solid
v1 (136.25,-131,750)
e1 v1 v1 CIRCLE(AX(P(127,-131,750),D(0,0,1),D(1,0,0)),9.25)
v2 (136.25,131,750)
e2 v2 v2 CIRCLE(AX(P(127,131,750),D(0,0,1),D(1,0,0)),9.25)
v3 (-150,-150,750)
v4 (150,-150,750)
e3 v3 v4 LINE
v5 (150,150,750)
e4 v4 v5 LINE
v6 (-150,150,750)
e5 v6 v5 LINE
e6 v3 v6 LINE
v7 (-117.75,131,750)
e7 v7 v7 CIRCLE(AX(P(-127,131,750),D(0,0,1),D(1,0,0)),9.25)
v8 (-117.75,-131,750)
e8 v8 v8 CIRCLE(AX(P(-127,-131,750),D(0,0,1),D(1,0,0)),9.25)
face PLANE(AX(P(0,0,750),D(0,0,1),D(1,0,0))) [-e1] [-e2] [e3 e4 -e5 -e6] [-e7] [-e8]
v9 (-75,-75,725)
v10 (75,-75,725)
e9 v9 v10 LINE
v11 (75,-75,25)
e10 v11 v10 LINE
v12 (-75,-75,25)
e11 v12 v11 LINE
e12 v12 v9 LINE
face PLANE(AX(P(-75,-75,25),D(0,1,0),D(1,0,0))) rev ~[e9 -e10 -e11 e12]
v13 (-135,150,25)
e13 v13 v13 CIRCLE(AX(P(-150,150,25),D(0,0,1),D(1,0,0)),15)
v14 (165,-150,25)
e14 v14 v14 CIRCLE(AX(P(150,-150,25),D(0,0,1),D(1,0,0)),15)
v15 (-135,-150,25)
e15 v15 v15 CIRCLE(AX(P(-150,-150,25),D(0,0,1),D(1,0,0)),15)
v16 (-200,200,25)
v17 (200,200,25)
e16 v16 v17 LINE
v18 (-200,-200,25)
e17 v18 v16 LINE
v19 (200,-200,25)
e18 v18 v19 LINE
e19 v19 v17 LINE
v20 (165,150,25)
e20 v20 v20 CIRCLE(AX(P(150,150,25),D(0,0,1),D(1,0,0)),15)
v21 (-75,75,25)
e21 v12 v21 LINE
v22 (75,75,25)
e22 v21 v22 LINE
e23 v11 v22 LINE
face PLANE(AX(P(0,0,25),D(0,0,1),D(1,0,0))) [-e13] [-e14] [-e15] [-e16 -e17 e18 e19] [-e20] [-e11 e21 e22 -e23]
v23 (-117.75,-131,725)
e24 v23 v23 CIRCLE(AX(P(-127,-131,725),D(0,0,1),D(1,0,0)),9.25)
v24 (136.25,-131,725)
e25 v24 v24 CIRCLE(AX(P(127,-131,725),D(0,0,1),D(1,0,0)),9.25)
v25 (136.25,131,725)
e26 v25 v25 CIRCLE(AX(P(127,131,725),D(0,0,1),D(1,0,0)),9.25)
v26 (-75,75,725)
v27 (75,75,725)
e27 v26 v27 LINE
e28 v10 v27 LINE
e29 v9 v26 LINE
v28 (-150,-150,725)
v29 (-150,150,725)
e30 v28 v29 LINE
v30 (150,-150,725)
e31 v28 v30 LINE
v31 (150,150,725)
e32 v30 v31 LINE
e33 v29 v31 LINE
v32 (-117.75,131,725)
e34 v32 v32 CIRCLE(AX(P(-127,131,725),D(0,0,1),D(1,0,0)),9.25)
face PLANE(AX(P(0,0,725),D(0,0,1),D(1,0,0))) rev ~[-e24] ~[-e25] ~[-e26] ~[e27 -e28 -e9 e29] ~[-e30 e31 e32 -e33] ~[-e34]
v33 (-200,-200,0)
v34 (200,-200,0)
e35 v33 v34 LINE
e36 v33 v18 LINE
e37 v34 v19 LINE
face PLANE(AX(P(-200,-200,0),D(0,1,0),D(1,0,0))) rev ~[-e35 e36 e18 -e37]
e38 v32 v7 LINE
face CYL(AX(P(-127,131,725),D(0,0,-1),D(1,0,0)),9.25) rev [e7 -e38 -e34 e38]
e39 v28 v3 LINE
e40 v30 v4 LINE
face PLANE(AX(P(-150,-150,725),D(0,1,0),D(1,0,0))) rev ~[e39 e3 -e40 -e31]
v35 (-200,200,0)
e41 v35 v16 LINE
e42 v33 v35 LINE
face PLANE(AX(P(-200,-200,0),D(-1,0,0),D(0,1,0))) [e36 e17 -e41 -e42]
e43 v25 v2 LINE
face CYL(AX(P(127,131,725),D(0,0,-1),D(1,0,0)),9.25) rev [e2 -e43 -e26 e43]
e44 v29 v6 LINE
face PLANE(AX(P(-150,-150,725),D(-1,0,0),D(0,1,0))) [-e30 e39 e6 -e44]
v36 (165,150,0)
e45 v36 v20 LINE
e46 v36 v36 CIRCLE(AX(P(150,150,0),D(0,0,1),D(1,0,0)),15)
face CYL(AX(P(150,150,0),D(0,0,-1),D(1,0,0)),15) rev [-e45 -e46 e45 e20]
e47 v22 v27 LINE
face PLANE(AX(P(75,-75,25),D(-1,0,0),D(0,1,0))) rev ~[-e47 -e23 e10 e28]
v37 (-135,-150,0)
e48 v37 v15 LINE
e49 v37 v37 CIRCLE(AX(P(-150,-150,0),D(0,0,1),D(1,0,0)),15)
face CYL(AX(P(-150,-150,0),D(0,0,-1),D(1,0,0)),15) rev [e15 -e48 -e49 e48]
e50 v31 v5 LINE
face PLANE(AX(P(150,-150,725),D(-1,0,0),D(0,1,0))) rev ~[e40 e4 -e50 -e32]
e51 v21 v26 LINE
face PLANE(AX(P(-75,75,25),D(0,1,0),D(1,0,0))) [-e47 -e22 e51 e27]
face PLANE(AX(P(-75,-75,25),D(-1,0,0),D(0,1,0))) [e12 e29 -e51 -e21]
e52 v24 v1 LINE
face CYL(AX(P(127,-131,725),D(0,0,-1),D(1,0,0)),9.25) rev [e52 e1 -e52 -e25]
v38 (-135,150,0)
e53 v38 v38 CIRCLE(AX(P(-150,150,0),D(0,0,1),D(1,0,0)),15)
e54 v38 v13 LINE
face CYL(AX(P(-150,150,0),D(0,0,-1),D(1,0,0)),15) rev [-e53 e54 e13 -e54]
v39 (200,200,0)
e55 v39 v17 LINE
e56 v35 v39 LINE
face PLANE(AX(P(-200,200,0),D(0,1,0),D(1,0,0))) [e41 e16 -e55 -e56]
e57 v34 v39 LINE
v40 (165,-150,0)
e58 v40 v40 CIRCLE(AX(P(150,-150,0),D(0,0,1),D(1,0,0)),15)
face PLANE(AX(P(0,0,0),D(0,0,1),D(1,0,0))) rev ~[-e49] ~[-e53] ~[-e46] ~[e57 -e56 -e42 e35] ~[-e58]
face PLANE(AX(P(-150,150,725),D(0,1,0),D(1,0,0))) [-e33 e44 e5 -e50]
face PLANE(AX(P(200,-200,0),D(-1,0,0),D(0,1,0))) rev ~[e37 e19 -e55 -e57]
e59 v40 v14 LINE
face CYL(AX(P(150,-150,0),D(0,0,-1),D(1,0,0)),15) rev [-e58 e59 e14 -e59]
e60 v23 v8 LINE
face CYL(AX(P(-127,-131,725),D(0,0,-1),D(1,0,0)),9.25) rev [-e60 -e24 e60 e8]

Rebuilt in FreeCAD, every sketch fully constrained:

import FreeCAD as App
import Part
import Sketcher

doc = App.newDocument("Part")
body = doc.addObject("PartDesign::Body", "Body")

# Sketch on XY plane
sketch1 = body.newObject("Sketcher::SketchObject", "Sketch")
sketch1.AttachmentSupport = (doc.getObject("XY_Plane"), [""])
sketch1.MapMode = "FlatFace"
sketch1.addGeometry([
    Part.LineSegment(App.Vector(-200, 200, 0), App.Vector(-200, -200, 0)),  # 0
    Part.LineSegment(App.Vector(-200, -200, 0), App.Vector(200, -200, 0)),  # 1
    Part.LineSegment(App.Vector(200, -200, 0), App.Vector(200, 200, 0)),  # 2
    Part.LineSegment(App.Vector(200, 200, 0), App.Vector(-200, 200, 0)),  # 3
    Part.Circle(App.Vector(-150, -150, 0), App.Vector(0, 0, 1), 15),  # 4
    Part.Circle(App.Vector(150, -150, 0), App.Vector(0, 0, 1), 15),  # 5
    Part.Circle(App.Vector(-150, 150, 0), App.Vector(0, 0, 1), 15),  # 6
    Part.Circle(App.Vector(150, 150, 0), App.Vector(0, 0, 1), 15),  # 7
], False)
sketch1.addConstraint([
    Sketcher.Constraint("Coincident", 0, 2, 1, 1),
    Sketcher.Constraint("Coincident", 1, 2, 2, 1),
    Sketcher.Constraint("Coincident", 2, 2, 3, 1),
    Sketcher.Constraint("Coincident", 3, 2, 0, 1),
    Sketcher.Constraint("Vertical", 0),
    Sketcher.Constraint("Horizontal", 1),
    Sketcher.Constraint("Vertical", 2),
    Sketcher.Constraint("Horizontal", 3),
    Sketcher.Constraint("Equal", 4, 5),
    Sketcher.Constraint("Equal", 5, 6),
    Sketcher.Constraint("Equal", 6, 7),
    Sketcher.Constraint("Symmetric", 5, 3, 6, 3, -1, 1),
    Sketcher.Constraint("Symmetric", 4, 3, 7, 3, -1, 1),
    Sketcher.Constraint("Symmetric", 0, 2, 2, 2, -1, 1),
    Sketcher.Constraint("Symmetric", 4, 3, 5, 3, -2),
    Sketcher.Constraint("Equal", 3, 0),
    Sketcher.Constraint("Diameter", 4, 30.0),
    Sketcher.Constraint("DistanceX", 1, 1, 1, 2, 400.0),
    Sketcher.Constraint("DistanceX", 4, 3, -1, 1, 150.0),
    Sketcher.Constraint("DistanceY", 4, 3, -1, 1, 150.0),
])
pad1 = body.newObject("PartDesign::Pad", "Pad")
pad1.Profile = sketch1
pad1.Length = 25

# Sketch on XY plane
sketch2 = body.newObject("Sketcher::SketchObject", "Sketch001")
sketch2.AttachmentSupport = (doc.getObject("XY_Plane"), [""])
sketch2.MapMode = "FlatFace"
sketch2.AttachmentOffset = App.Placement(App.Vector(0, 0, 25), App.Rotation())
sketch2.addGeometry([
    Part.LineSegment(App.Vector(-75, 75, 0), App.Vector(-75, -75, 0)),
    Part.LineSegment(App.Vector(-75, -75, 0), App.Vector(75, -75, 0)),
    Part.LineSegment(App.Vector(75, -75, 0), App.Vector(75, 75, 0)),
    Part.LineSegment(App.Vector(75, 75, 0), App.Vector(-75, 75, 0)),
], False)
sketch2.addConstraint([
    Sketcher.Constraint("Coincident", 0, 2, 1, 1),
    Sketcher.Constraint("Coincident", 1, 2, 2, 1),
    Sketcher.Constraint("Coincident", 2, 2, 3, 1),
    Sketcher.Constraint("Coincident", 3, 2, 0, 1),
    Sketcher.Constraint("Vertical", 0),
    Sketcher.Constraint("Horizontal", 1),
    Sketcher.Constraint("Vertical", 2),
    Sketcher.Constraint("Horizontal", 3),
    Sketcher.Constraint("Symmetric", 0, 2, 2, 2, -1, 1),
    Sketcher.Constraint("Equal", 3, 0),
    Sketcher.Constraint("DistanceX", 1, 1, 1, 2, 150.0),
])
pad2 = body.newObject("PartDesign::Pad", "Pad001")
pad2.Profile = sketch2
pad2.Length = 700

# Sketch on XY plane
sketch3 = body.newObject("Sketcher::SketchObject", "Sketch002")
sketch3.AttachmentSupport = (doc.getObject("XY_Plane"), [""])
sketch3.MapMode = "FlatFace"
sketch3.AttachmentOffset = App.Placement(App.Vector(0, 0, 725), App.Rotation())
sketch3.addGeometry([
    Part.LineSegment(App.Vector(-150, 150, 0), App.Vector(-150, -150, 0)),  # 0
    Part.LineSegment(App.Vector(-150, -150, 0), App.Vector(150, -150, 0)),  # 1
    Part.LineSegment(App.Vector(150, -150, 0), App.Vector(150, 150, 0)),  # 2
    Part.LineSegment(App.Vector(150, 150, 0), App.Vector(-150, 150, 0)),  # 3
    Part.Circle(App.Vector(-127, -131, 0), App.Vector(0, 0, 1), 9),  # 4
    Part.Circle(App.Vector(127, -131, 0), App.Vector(0, 0, 1), 9),  # 5
    Part.Circle(App.Vector(-127, 131, 0), App.Vector(0, 0, 1), 9),  # 6
    Part.Circle(App.Vector(127, 131, 0), App.Vector(0, 0, 1), 9),  # 7
], False)
sketch3.addConstraint([
    Sketcher.Constraint("Coincident", 0, 2, 1, 1),
    Sketcher.Constraint("Coincident", 1, 2, 2, 1),
    Sketcher.Constraint("Coincident", 2, 2, 3, 1),
    Sketcher.Constraint("Coincident", 3, 2, 0, 1),
    Sketcher.Constraint("Vertical", 0),
    Sketcher.Constraint("Horizontal", 1),
    Sketcher.Constraint("Vertical", 2),
    Sketcher.Constraint("Horizontal", 3),
    Sketcher.Constraint("Equal", 4, 5),
    Sketcher.Constraint("Equal", 5, 6),
    Sketcher.Constraint("Equal", 6, 7),
    Sketcher.Constraint("Symmetric", 5, 3, 6, 3, -1, 1),
    Sketcher.Constraint("Symmetric", 4, 3, 7, 3, -1, 1),
    Sketcher.Constraint("Symmetric", 0, 2, 2, 2, -1, 1),
    Sketcher.Constraint("Symmetric", 4, 3, 5, 3, -2),
    Sketcher.Constraint("Equal", 3, 0),
    Sketcher.Constraint("Diameter", 4, 18.5),
    Sketcher.Constraint("DistanceX", 1, 1, 1, 2, 300.0),
    Sketcher.Constraint("DistanceX", 4, 3, -1, 1, 127.0),
    Sketcher.Constraint("DistanceY", 4, 3, -1, 1, 131.0),
])
pad3 = body.newObject("PartDesign::Pad", "Pad002")
pad3.Profile = sketch3
pad3.Length = 25

doc.recompute()
